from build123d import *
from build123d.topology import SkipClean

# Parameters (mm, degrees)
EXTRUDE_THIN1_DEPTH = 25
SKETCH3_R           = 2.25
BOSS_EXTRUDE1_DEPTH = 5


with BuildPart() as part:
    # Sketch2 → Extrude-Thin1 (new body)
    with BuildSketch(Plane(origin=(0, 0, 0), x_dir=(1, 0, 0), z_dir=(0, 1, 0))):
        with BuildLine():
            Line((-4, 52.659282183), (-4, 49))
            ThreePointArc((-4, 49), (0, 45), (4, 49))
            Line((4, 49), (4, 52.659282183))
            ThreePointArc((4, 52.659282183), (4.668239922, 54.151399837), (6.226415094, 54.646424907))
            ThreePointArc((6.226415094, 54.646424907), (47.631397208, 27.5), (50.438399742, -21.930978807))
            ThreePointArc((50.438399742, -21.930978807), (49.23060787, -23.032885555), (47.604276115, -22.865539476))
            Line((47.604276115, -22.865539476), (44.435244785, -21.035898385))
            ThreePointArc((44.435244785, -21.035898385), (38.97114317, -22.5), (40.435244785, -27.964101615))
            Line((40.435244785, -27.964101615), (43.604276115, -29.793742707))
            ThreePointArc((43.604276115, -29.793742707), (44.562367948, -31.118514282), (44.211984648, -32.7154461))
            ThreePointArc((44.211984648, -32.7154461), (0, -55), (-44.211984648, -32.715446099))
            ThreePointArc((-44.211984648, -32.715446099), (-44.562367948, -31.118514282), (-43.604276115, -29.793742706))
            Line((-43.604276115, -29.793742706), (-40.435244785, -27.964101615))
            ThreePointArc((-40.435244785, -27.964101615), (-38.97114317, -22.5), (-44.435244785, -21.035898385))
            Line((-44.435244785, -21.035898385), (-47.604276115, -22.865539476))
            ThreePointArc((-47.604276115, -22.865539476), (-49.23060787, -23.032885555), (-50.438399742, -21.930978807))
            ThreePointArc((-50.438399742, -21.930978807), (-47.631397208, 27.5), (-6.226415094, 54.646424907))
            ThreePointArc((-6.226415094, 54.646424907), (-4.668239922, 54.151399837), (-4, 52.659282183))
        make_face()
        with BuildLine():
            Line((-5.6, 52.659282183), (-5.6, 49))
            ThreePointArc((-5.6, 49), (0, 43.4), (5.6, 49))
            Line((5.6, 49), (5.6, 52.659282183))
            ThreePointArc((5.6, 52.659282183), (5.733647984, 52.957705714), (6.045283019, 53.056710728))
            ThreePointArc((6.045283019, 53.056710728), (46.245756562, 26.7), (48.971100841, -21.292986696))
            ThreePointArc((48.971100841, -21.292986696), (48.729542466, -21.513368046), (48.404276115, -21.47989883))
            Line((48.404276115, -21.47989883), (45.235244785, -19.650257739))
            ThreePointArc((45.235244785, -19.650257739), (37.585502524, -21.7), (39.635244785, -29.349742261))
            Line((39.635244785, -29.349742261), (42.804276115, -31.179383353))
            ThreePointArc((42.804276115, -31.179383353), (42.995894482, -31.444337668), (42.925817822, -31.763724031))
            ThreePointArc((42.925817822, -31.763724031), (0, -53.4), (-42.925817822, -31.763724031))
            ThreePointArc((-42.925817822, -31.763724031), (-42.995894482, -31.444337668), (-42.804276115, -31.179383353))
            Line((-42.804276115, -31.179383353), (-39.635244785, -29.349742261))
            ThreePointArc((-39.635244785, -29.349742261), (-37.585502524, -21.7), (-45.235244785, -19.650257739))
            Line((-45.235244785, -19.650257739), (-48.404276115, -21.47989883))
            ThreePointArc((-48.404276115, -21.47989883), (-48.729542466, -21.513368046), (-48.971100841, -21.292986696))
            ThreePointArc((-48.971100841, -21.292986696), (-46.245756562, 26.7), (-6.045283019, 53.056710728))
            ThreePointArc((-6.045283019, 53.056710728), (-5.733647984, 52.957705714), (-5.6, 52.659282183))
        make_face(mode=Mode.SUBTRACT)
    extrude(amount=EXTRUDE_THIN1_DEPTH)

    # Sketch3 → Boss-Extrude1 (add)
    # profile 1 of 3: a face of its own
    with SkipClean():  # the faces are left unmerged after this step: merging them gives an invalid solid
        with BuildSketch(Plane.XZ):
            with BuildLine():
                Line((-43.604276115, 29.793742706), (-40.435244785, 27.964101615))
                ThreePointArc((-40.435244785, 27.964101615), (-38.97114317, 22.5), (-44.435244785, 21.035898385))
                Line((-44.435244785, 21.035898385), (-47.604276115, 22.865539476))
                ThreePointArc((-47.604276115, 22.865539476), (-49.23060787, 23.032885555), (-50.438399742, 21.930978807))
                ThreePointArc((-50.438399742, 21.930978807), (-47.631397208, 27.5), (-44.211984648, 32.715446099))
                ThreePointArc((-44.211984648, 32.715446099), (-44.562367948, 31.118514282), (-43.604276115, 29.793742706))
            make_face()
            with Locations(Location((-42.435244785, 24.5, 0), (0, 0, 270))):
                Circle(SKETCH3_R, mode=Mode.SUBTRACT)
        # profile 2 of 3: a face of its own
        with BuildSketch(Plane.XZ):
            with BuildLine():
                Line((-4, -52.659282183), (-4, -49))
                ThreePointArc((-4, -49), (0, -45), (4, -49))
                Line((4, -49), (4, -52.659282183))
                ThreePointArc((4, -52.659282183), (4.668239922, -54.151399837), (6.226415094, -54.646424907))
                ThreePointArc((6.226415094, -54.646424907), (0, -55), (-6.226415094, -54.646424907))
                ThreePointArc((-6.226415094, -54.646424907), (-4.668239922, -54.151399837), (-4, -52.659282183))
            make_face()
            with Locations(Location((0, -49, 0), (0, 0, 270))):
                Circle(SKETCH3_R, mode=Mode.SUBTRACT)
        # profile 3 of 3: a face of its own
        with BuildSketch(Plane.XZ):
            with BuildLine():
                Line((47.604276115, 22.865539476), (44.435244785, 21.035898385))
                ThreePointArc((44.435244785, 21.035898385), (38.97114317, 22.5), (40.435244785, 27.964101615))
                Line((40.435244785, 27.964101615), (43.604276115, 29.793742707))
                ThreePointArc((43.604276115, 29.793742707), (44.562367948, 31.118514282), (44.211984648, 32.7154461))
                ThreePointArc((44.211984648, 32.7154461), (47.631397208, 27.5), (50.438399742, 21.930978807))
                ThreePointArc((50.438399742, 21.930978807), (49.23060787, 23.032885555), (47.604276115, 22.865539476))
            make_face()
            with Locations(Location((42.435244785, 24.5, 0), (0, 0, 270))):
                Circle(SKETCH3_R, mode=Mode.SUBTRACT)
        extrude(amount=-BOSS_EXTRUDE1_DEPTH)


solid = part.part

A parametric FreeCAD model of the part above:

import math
import FreeCAD as App
import Part
import Sketcher
from FreeCAD import Vector
Q = App.Units.Quantity

doc = App.newDocument("Part")
params = doc.addObject("Spreadsheet::Sheet", "Params")
for row, (alias, value) in enumerate([
    ("sketch1_radius", "2 mm"),
    ("sketch1_radius2", "55 mm"),
    ("sketch1_radius3", "4 mm"),
    ("sketch1_radius4", "5.6 mm"),
    ("pad1_length", "25 mm"),
    ("sketch2_radius", "2 mm"),
    ("sketch2_radius2", "55 mm"),
    ("sketch2_radius3", "4 mm"),
    ("sketch2_diameter", "4.5 mm"),
    ("pad2_length", "5 mm"),
], start=1):
    params.set(f"A{row}", alias)
    params.set(f"B{row}", "=" + value)
    params.setAlias(f"B{row}", alias)

body = doc.addObject("PartDesign::Body", "Body")

sketch1 = body.newObject("Sketcher::SketchObject", "Sketch")
sketch1.AttachmentSupport = (doc.getObject("XZ_Plane"), [""])
sketch1.MapMode = "FlatFace"
sketch1.addGeometry(Part.LineSegment(Vector(-4, -49, 0), Vector(-4, -52.66, 0)), False)
sketch1.addGeometry(Part.ArcOfCircle(Part.Circle(Vector(-6, -52.66, 0), Vector(0, 0, 1), 2), math.radians(-97), math.radians(0)), False)
sketch1.addGeometry(Part.ArcOfCircle(Part.Circle(Vector(0, 0, 0), Vector(0, 0, 1), 55), math.radians(157), math.radians(263)), False)
sketch1.addGeometry(Part.ArcOfCircle(Part.Circle(Vector(-48.6, 21.13, 0), Vector(0, 0, 1), 2), math.radians(60), math.radians(157)), False)
sketch1.addGeometry(Part.LineSegment(Vector(-47.6, 22.87, 0), Vector(-44.44, 21.04, 0)), False)
sketch1.addGeometry(Part.ArcOfCircle(Part.Circle(Vector(-42.44, 24.5, 0), Vector(0, 0, 1), 4), math.radians(-120), math.radians(60)), False)
sketch1.addGeometry(Part.LineSegment(Vector(-40.44, 27.96, 0), Vector(-43.6, 29.79, 0)), False)
sketch1.addGeometry(Part.ArcOfCircle(Part.Circle(Vector(-42.6, 31.53, 0), Vector(0, 0, 1), 2), math.radians(143), math.radians(240)), False)
sketch1.addGeometry(Part.ArcOfCircle(Part.Circle(Vector(0, 0, 0), Vector(0, 0, 1), 55), math.radians(37), math.radians(143)), False)
sketch1.addGeometry(Part.ArcOfCircle(Part.Circle(Vector(42.6, 31.53, 0), Vector(0, 0, 1), 2), math.radians(-60), math.radians(37)), False)
sketch1.addGeometry(Part.LineSegment(Vector(43.6, 29.79, 0), Vector(40.44, 27.96, 0)), False)
sketch1.addGeometry(Part.ArcOfCircle(Part.Circle(Vector(42.44, 24.5, 0), Vector(0, 0, 1), 4), math.radians(120), math.radians(300)), False)
sketch1.addGeometry(Part.LineSegment(Vector(44.44, 21.04, 0), Vector(47.6, 22.87, 0)), False)
sketch1.addGeometry(Part.ArcOfCircle(Part.Circle(Vector(48.6, 21.13, 0), Vector(0, 0, 1), 2), math.radians(23), math.radians(120)), False)
sketch1.addGeometry(Part.ArcOfCircle(Part.Circle(Vector(0, 0, 0), Vector(0, 0, 1), 55), math.radians(-83), math.radians(23)), False)
sketch1.addGeometry(Part.ArcOfCircle(Part.Circle(Vector(6, -52.66, 0), Vector(0, 0, 1), 2), math.radians(-180), math.radians(-83)), False)
sketch1.addGeometry(Part.LineSegment(Vector(4, -52.66, 0), Vector(4, -49, 0)), False)
sketch1.addGeometry(Part.ArcOfCircle(Part.Circle(Vector(0, -49, 0), Vector(0, 0, 1), 4), math.radians(0), math.radians(180)), False)
sketch1.addGeometry(Part.LineSegment(Vector(-5.6, -52.66, 0), Vector(-5.6, -49, 0)), False)
sketch1.addGeometry(Part.ArcOfCircle(Part.Circle(Vector(0, -49, 0), Vector(0, 0, 1), 5.6), math.radians(0), math.radians(180)), False)
sketch1.addGeometry(Part.LineSegment(Vector(5.6, -49, 0), Vector(5.6, -52.66, 0)), False)
sketch1.addGeometry(Part.ArcOfCircle(Part.Circle(Vector(6, -52.66, 0), Vector(0, 0, 1), 0.4), math.radians(180), math.radians(277)), False)
sketch1.addGeometry(Part.ArcOfCircle(Part.Circle(Vector(0, 0, 0), Vector(0, 0, 1), 53.4), math.radians(-83), math.radians(23)), False)
sketch1.addGeometry(Part.ArcOfCircle(Part.Circle(Vector(48.6, 21.13, 0), Vector(0, 0, 1), 0.4), math.radians(23), math.radians(120)), False)
sketch1.addGeometry(Part.LineSegment(Vector(48.4, 21.48, 0), Vector(45.24, 19.65, 0)), False)
sketch1.addGeometry(Part.ArcOfCircle(Part.Circle(Vector(42.44, 24.5, 0), Vector(0, 0, 1), 5.6), math.radians(120), math.radians(300)), False)
sketch1.addGeometry(Part.LineSegment(Vector(39.64, 29.35, 0), Vector(42.8, 31.18, 0)), False)
sketch1.addGeometry(Part.ArcOfCircle(Part.Circle(Vector(42.6, 31.53, 0), Vector(0, 0, 1), 0.4), math.radians(-60), math.radians(37)), False)
sketch1.addGeometry(Part.ArcOfCircle(Part.Circle(Vector(0, 0, 0), Vector(0, 0, 1), 53.4), math.radians(37), math.radians(143)), False)
sketch1.addGeometry(Part.ArcOfCircle(Part.Circle(Vector(-42.6, 31.53, 0), Vector(0, 0, 1), 0.4), math.radians(143), math.radians(240)), False)
sketch1.addGeometry(Part.LineSegment(Vector(-42.8, 31.18, 0), Vector(-39.64, 29.35, 0)), False)
sketch1.addGeometry(Part.ArcOfCircle(Part.Circle(Vector(-42.44, 24.5, 0), Vector(0, 0, 1), 5.6), math.radians(-120), math.radians(60)), False)
sketch1.addGeometry(Part.LineSegment(Vector(-45.24, 19.65, 0), Vector(-48.4, 21.48, 0)), False)
sketch1.addGeometry(Part.ArcOfCircle(Part.Circle(Vector(-48.6, 21.13, 0), Vector(0, 0, 1), 0.4), math.radians(60), math.radians(157)), False)
sketch1.addGeometry(Part.ArcOfCircle(Part.Circle(Vector(0, 0, 0), Vector(0, 0, 1), 53.4), math.radians(157), math.radians(263)), False)
sketch1.addGeometry(Part.ArcOfCircle(Part.Circle(Vector(-6, -52.66, 0), Vector(0, 0, 1), 0.4), math.radians(-97), math.radians(0)), False)
sketch1.addConstraint(Sketcher.Constraint("Tangent", 0, 2, 1, 2))
sketch1.addConstraint(Sketcher.Constraint("Tangent", 1, 1, 2, 2))
sketch1.addConstraint(Sketcher.Constraint("Tangent", 2, 1, 3, 2))
sketch1.addConstraint(Sketcher.Constraint("Tangent", 3, 1, 4, 1))
sketch1.addConstraint(Sketcher.Constraint("Tangent", 4, 2, 5, 1))
sketch1.addConstraint(Sketcher.Constraint("Tangent", 5, 2, 6, 1))
sketch1.addConstraint(Sketcher.Constraint("Tangent", 6, 2, 7, 2))
sketch1.addConstraint(Sketcher.Constraint("Tangent", 7, 1, 8, 2))
sketch1.addConstraint(Sketcher.Constraint("Tangent", 8, 1, 9, 2))
sketch1.addConstraint(Sketcher.Constraint("Tangent", 9, 1, 10, 1))
sketch1.addConstraint(Sketcher.Constraint("Tangent", 10, 2, 11, 1))
sketch1.addConstraint(Sketcher.Constraint("Tangent", 11, 2, 12, 1))
sketch1.addConstraint(Sketcher.Constraint("Tangent", 12, 2, 13, 2))
sketch1.addConstraint(Sketcher.Constraint("Tangent", 13, 1, 14, 2))
sketch1.addConstraint(Sketcher.Constraint("Tangent", 14, 1, 15, 2))
sketch1.addConstraint(Sketcher.Constraint("Tangent", 15, 1, 16, 1))
sketch1.addConstraint(Sketcher.Constraint("Tangent", 16, 2, 17, 1))
sketch1.addConstraint(Sketcher.Constraint("Tangent", 17, 2, 0, 1))
sketch1.addConstraint(Sketcher.Constraint("Tangent", 18, 2, 19, 2))
sketch1.addConstraint(Sketcher.Constraint("Tangent", 19, 1, 20, 1))
sketch1.addConstraint(Sketcher.Constraint("Tangent", 20, 2, 21, 1))
sketch1.addConstraint(Sketcher.Constraint("Tangent", 21, 2, 22, 1))
sketch1.addConstraint(Sketcher.Constraint("Tangent", 22, 2, 23, 1))
sketch1.addConstraint(Sketcher.Constraint("Tangent", 23, 2, 24, 1))
sketch1.addConstraint(Sketcher.Constraint("Tangent", 24, 2, 25, 2))
sketch1.addConstraint(Sketcher.Constraint("Tangent", 25, 1, 26, 1))
sketch1.addConstraint(Sketcher.Constraint("Tangent", 26, 2, 27, 1))
sketch1.addConstraint(Sketcher.Constraint("Tangent", 27, 2, 28, 1))
sketch1.addConstraint(Sketcher.Constraint("Tangent", 28, 2, 29, 1))
sketch1.addConstraint(Sketcher.Constraint("Tangent", 29, 2, 30, 1))
sketch1.addConstraint(Sketcher.Constraint("Tangent", 30, 2, 31, 2))
sketch1.addConstraint(Sketcher.Constraint("Tangent", 31, 1, 32, 1))
sketch1.addConstraint(Sketcher.Constraint("Tangent", 32, 2, 33, 1))
sketch1.addConstraint(Sketcher.Constraint("Tangent", 33, 2, 34, 1))
sketch1.addConstraint(Sketcher.Constraint("Tangent", 34, 2, 35, 1))
sketch1.addConstraint(Sketcher.Constraint("Tangent", 35, 2, 18, 1))
sketch1.addConstraint(Sketcher.Constraint("Vertical", 0))
sketch1.addConstraint(Sketcher.Constraint("Vertical", 16))
sketch1.addConstraint(Sketcher.Constraint("Vertical", 18))
sketch1.addConstraint(Sketcher.Constraint("Vertical", 20))
sketch1.addConstraint(Sketcher.Constraint("Coincident", 2, 3, -1, 1))
sketch1.addConstraint(Sketcher.Constraint("Coincident", 8, 3, -1, 1))
sketch1.addConstraint(Sketcher.Constraint("Coincident", 14, 3, -1, 1))
sketch1.addConstraint(Sketcher.Constraint("Coincident", 22, 3, -1, 1))
sketch1.addConstraint(Sketcher.Constraint("Coincident", 28, 3, -1, 1))
sketch1.addConstraint(Sketcher.Constraint("Coincident", 34, 3, -1, 1))
sketch1.addConstraint(Sketcher.Constraint("Coincident", 19, 3, 17, 3))
sketch1.addConstraint(Sketcher.Constraint("Coincident", 21, 3, 15, 3))
sketch1.addConstraint(Sketcher.Constraint("Coincident", 23, 3, 13, 3))
sketch1.addConstraint(Sketcher.Constraint("Coincident", 25, 3, 11, 3))
sketch1.addConstraint(Sketcher.Constraint("Coincident", 27, 3, 9, 3))
sketch1.addConstraint(Sketcher.Constraint("Coincident", 29, 3, 7, 3))
sketch1.addConstraint(Sketcher.Constraint("Coincident", 31, 3, 5, 3))
sketch1.addConstraint(Sketcher.Constraint("Coincident", 33, 3, 3, 3))
sketch1.addConstraint(Sketcher.Constraint("Coincident", 35, 3, 1, 3))
sketch1.addConstraint(Sketcher.Constraint("Equal", 1, 3))
sketch1.addConstraint(Sketcher.Constraint("Equal", 3, 7))
sketch1.addConstraint(Sketcher.Constraint("Equal", 2, 8))
sketch1.addConstraint(Sketcher.Constraint("Equal", 7, 9))
sketch1.addConstraint(Sketcher.Constraint("Equal", 5, 11))
sketch1.addConstraint(Sketcher.Constraint("Equal", 9, 13))
sketch1.addConstraint(Sketcher.Constraint("Equal", 8, 14))
sketch1.addConstraint(Sketcher.Constraint("Equal", 13, 15))
sketch1.addConstraint(Sketcher.Constraint("Equal", 11, 17))
sketch1.addConstraint(Sketcher.Constraint("Equal", 19, 25))
sketch1.addConstraint(Sketcher.Constraint("Equal", 23, 27))
sketch1.addConstraint(Sketcher.Constraint("Equal", 25, 31))
sketch1.addConstraint(Sketcher.Constraint("Symmetric", 5, 3, 11, 3, -2))
sketch1.addConstraint(Sketcher.Constraint("PointOnObject", 17, 3, -2))
sketch1.addConstraint(Sketcher.Constraint("Parallel", 4, 6))
sketch1.addConstraint(Sketcher.Constraint("Parallel", 10, 12))
sketch1.addConstraint(Sketcher.Constraint("Horizontal", 7, 3, 9, 3))
sketch1.addConstraint(Sketcher.Constraint("Equal", 4, 6))
sketch1.addConstraint(Sketcher.Constraint("Radius", 1, 2.0))
sketch1.addConstraint(Sketcher.Constraint("Radius", 2, 55.0))
sketch1.addConstraint(Sketcher.Constraint("Radius", 5, 4.0))
sketch1.addConstraint(Sketcher.Constraint("Radius", 19, 5.6))
sketch1.addConstraint(Sketcher.Constraint("Angle", 4, Q("-30 deg")))
sketch1.addConstraint(Sketcher.Constraint("DistanceY", 17, 3, -1, 1, 49.0))
sketch1.addConstraint(Sketcher.Constraint("DistanceY", -1, 1, 5, 3, 24.5))
sketch1.setExpression("Constraints[73]", "Params.sketch1_radius")
sketch1.setExpression("Constraints[74]", "Params.sketch1_radius2")
sketch1.setExpression("Constraints[75]", "Params.sketch1_radius3")
sketch1.setExpression("Constraints[76]", "Params.sketch1_radius4")
pad1 = body.newObject("PartDesign::Pad", "Pad")
pad1.Profile = sketch1
pad1.setExpression("Length", "Params.pad1_length")
pad1.Reversed = True

sketch2 = body.newObject("Sketcher::SketchObject", "Sketch001")
sketch2.AttachmentSupport = (doc.getObject("XZ_Plane"), [""])
sketch2.MapMode = "FlatFace"
sketch2.addGeometry(Part.LineSegment(Vector(-40.4, 28, 0), Vector(-43.6, 29.8, 0)), False)
sketch2.addGeometry(Part.ArcOfCircle(Part.Circle(Vector(-42.6, 31.5, 0), Vector(0, 0, 1), 2), math.radians(143), math.radians(240)), False)
sketch2.addGeometry(Part.ArcOfCircle(Part.Circle(Vector(0, 0, 0), Vector(0, 0, 1), 55), math.radians(143.5), math.radians(156.5)), False)
sketch2.addGeometry(Part.ArcOfCircle(Part.Circle(Vector(-48.6, 21.1, 0), Vector(0, 0, 1), 2), math.radians(60), math.radians(157)), False)
sketch2.addGeometry(Part.LineSegment(Vector(-47.6, 22.9, 0), Vector(-44.4, 21, 0)), False)
sketch2.addGeometry(Part.ArcOfCircle(Part.Circle(Vector(-42.4, 24.5, 0), Vector(0, 0, 1), 4), math.radians(-120), math.radians(60)), False)
sketch2.addGeometry(Part.Circle(Vector(-42.4, 24.5, 0), Vector(0, 0, 1), 2.2), False)
sketch2.addGeometry(Part.LineSegment(Vector(-4, -49, 0), Vector(-4, -52.7, 0)), False)
sketch2.addGeometry(Part.ArcOfCircle(Part.Circle(Vector(-6, -52.7, 0), Vector(0, 0, 1), 2), math.radians(-97), math.radians(0)), False)
sketch2.addGeometry(Part.ArcOfCircle(Part.Circle(Vector(0, 0, 0), Vector(0, 0, 1), 55), math.radians(-96.5), math.radians(-83.5)), False)
sketch2.addGeometry(Part.ArcOfCircle(Part.Circle(Vector(6, -52.7, 0), Vector(0, 0, 1), 2), math.radians(-180), math.radians(-83)), False)
sketch2.addGeometry(Part.LineSegment(Vector(4, -52.7, 0), Vector(4, -49, 0)), False)
sketch2.addGeometry(Part.ArcOfCircle(Part.Circle(Vector(0, -49, 0), Vector(0, 0, 1), 4), math.radians(0), math.radians(180)), False)
sketch2.addGeometry(Part.Circle(Vector(0, -49, 0), Vector(0, 0, 1), 2.2), False)
sketch2.addGeometry(Part.LineSegment(Vector(44.4, 21, 0), Vector(47.6, 22.9, 0)), False)
sketch2.addGeometry(Part.ArcOfCircle(Part.Circle(Vector(48.6, 21.1, 0), Vector(0, 0, 1), 2), math.radians(23), math.radians(120)), False)
sketch2.addGeometry(Part.ArcOfCircle(Part.Circle(Vector(0, 0, 0), Vector(0, 0, 1), 55), math.radians(23.5), math.radians(36.5)), False)
sketch2.addGeometry(Part.ArcOfCircle(Part.Circle(Vector(42.6, 31.5, 0), Vector(0, 0, 1), 2), math.radians(-60), math.radians(37)), False)
sketch2.addGeometry(Part.LineSegment(Vector(43.6, 29.8, 0), Vector(40.4, 28, 0)), False)
sketch2.addGeometry(Part.ArcOfCircle(Part.Circle(Vector(42.4, 24.5, 0), Vector(0, 0, 1), 4), math.radians(120), math.radians(300)), False)
sketch2.addGeometry(Part.Circle(Vector(42.4, 24.5, 0), Vector(0, 0, 1), 2.2), False)
sketch2.addConstraint(Sketcher.Constraint("Tangent", 0, 2, 1, 2))
sketch2.addConstraint(Sketcher.Constraint("Tangent", 1, 1, 2, 1))
sketch2.addConstraint(Sketcher.Constraint("Tangent", 2, 2, 3, 2))
sketch2.addConstraint(Sketcher.Constraint("Tangent", 3, 1, 4, 1))
sketch2.addConstraint(Sketcher.Constraint("Tangent", 4, 2, 5, 1))
sketch2.addConstraint(Sketcher.Constraint("Tangent", 5, 2, 0, 1))
sketch2.addConstraint(Sketcher.Constraint("Tangent", 7, 2, 8, 2))
sketch2.addConstraint(Sketcher.Constraint("Tangent", 8, 1, 9, 1))
sketch2.addConstraint(Sketcher.Constraint("Tangent", 9, 2, 10, 2))
sketch2.addConstraint(Sketcher.Constraint("Tangent", 10, 1, 11, 1))
sketch2.addConstraint(Sketcher.Constraint("Tangent", 11, 2, 12, 1))
sketch2.addConstraint(Sketcher.Constraint("Tangent", 12, 2, 7, 1))
sketch2.addConstraint(Sketcher.Constraint("Tangent", 14, 2, 15, 2))
sketch2.addConstraint(Sketcher.Constraint("Tangent", 15, 1, 16, 1))
sketch2.addConstraint(Sketcher.Constraint("Tangent", 16, 2, 17, 2))
sketch2.addConstraint(Sketcher.Constraint("Tangent", 17, 1, 18, 1))
sketch2.addConstraint(Sketcher.Constraint("Tangent", 18, 2, 19, 1))
sketch2.addConstraint(Sketcher.Constraint("Tangent", 19, 2, 14, 1))
sketch2.addConstraint(Sketcher.Constraint("Vertical", 7))
sketch2.addConstraint(Sketcher.Constraint("Vertical", 11))
sketch2.addConstraint(Sketcher.Constraint("Coincident", 2, 3, -1, 1))
sketch2.addConstraint(Sketcher.Constraint("Coincident", 9, 3, -1, 1))
sketch2.addConstraint(Sketcher.Constraint("Coincident", 16, 3, -1, 1))
sketch2.addConstraint(Sketcher.Constraint("Coincident", 6, 3, 5, 3))
sketch2.addConstraint(Sketcher.Constraint("Coincident", 13, 3, 12, 3))
sketch2.addConstraint(Sketcher.Constraint("Coincident", 20, 3, 19, 3))
sketch2.addConstraint(Sketcher.Constraint("Equal", 1, 3))
sketch2.addConstraint(Sketcher.Constraint("Equal", 3, 8))
sketch2.addConstraint(Sketcher.Constraint("Equal", 2, 9))
sketch2.addConstraint(Sketcher.Constraint("Equal", 8, 10))
sketch2.addConstraint(Sketcher.Constraint("Equal", 5, 12))
sketch2.addConstraint(Sketcher.Constraint("Equal", 6, 13))
sketch2.addConstraint(Sketcher.Constraint("Equal", 10, 15))
sketch2.addConstraint(Sketcher.Constraint("Equal", 9, 16))
sketch2.addConstraint(Sketcher.Constraint("Equal", 15, 17))
sketch2.addConstraint(Sketcher.Constraint("Equal", 12, 19))
sketch2.addConstraint(Sketcher.Constraint("Equal", 13, 20))
sketch2.addConstraint(Sketcher.Constraint("Symmetric", 5, 3, 19, 3, -2))
sketch2.addConstraint(Sketcher.Constraint("PointOnObject", 12, 3, -2))
sketch2.addConstraint(Sketcher.Constraint("Parallel", 0, 4))
sketch2.addConstraint(Sketcher.Constraint("Parallel", 14, 18))
sketch2.addConstraint(Sketcher.Constraint("Horizontal", 3, 3, 15, 3))
sketch2.addConstraint(Sketcher.Constraint("Equal", 0, 4))
sketch2.addConstraint(Sketcher.Constraint("Radius", 1, 2.0))
sketch2.addConstraint(Sketcher.Constraint("Radius", 2, 55.0))
sketch2.addConstraint(Sketcher.Constraint("Radius", 5, 4.0))
sketch2.addConstraint(Sketcher.Constraint("Diameter", 6, 4.5))
sketch2.addConstraint(Sketcher.Constraint("Angle", 0, Q("150 deg")))
sketch2.addConstraint(Sketcher.Constraint("DistanceY", 12, 3, -1, 1, 49.0))
sketch2.addConstraint(Sketcher.Constraint("DistanceY", -1, 1, 5, 3, 24.5))
sketch2.setExpression("Constraints[43]", "Params.sketch2_radius")
sketch2.setExpression("Constraints[44]", "Params.sketch2_radius2")
sketch2.setExpression("Constraints[45]", "Params.sketch2_radius3")
sketch2.setExpression("Constraints[46]", "Params.sketch2_diameter")
pad2 = body.newObject("PartDesign::Pad", "Pad001")
pad2.Profile = sketch2
pad2.setExpression("Length", "Params.pad2_length")
pad2.Reversed = True

doc.recompute()
